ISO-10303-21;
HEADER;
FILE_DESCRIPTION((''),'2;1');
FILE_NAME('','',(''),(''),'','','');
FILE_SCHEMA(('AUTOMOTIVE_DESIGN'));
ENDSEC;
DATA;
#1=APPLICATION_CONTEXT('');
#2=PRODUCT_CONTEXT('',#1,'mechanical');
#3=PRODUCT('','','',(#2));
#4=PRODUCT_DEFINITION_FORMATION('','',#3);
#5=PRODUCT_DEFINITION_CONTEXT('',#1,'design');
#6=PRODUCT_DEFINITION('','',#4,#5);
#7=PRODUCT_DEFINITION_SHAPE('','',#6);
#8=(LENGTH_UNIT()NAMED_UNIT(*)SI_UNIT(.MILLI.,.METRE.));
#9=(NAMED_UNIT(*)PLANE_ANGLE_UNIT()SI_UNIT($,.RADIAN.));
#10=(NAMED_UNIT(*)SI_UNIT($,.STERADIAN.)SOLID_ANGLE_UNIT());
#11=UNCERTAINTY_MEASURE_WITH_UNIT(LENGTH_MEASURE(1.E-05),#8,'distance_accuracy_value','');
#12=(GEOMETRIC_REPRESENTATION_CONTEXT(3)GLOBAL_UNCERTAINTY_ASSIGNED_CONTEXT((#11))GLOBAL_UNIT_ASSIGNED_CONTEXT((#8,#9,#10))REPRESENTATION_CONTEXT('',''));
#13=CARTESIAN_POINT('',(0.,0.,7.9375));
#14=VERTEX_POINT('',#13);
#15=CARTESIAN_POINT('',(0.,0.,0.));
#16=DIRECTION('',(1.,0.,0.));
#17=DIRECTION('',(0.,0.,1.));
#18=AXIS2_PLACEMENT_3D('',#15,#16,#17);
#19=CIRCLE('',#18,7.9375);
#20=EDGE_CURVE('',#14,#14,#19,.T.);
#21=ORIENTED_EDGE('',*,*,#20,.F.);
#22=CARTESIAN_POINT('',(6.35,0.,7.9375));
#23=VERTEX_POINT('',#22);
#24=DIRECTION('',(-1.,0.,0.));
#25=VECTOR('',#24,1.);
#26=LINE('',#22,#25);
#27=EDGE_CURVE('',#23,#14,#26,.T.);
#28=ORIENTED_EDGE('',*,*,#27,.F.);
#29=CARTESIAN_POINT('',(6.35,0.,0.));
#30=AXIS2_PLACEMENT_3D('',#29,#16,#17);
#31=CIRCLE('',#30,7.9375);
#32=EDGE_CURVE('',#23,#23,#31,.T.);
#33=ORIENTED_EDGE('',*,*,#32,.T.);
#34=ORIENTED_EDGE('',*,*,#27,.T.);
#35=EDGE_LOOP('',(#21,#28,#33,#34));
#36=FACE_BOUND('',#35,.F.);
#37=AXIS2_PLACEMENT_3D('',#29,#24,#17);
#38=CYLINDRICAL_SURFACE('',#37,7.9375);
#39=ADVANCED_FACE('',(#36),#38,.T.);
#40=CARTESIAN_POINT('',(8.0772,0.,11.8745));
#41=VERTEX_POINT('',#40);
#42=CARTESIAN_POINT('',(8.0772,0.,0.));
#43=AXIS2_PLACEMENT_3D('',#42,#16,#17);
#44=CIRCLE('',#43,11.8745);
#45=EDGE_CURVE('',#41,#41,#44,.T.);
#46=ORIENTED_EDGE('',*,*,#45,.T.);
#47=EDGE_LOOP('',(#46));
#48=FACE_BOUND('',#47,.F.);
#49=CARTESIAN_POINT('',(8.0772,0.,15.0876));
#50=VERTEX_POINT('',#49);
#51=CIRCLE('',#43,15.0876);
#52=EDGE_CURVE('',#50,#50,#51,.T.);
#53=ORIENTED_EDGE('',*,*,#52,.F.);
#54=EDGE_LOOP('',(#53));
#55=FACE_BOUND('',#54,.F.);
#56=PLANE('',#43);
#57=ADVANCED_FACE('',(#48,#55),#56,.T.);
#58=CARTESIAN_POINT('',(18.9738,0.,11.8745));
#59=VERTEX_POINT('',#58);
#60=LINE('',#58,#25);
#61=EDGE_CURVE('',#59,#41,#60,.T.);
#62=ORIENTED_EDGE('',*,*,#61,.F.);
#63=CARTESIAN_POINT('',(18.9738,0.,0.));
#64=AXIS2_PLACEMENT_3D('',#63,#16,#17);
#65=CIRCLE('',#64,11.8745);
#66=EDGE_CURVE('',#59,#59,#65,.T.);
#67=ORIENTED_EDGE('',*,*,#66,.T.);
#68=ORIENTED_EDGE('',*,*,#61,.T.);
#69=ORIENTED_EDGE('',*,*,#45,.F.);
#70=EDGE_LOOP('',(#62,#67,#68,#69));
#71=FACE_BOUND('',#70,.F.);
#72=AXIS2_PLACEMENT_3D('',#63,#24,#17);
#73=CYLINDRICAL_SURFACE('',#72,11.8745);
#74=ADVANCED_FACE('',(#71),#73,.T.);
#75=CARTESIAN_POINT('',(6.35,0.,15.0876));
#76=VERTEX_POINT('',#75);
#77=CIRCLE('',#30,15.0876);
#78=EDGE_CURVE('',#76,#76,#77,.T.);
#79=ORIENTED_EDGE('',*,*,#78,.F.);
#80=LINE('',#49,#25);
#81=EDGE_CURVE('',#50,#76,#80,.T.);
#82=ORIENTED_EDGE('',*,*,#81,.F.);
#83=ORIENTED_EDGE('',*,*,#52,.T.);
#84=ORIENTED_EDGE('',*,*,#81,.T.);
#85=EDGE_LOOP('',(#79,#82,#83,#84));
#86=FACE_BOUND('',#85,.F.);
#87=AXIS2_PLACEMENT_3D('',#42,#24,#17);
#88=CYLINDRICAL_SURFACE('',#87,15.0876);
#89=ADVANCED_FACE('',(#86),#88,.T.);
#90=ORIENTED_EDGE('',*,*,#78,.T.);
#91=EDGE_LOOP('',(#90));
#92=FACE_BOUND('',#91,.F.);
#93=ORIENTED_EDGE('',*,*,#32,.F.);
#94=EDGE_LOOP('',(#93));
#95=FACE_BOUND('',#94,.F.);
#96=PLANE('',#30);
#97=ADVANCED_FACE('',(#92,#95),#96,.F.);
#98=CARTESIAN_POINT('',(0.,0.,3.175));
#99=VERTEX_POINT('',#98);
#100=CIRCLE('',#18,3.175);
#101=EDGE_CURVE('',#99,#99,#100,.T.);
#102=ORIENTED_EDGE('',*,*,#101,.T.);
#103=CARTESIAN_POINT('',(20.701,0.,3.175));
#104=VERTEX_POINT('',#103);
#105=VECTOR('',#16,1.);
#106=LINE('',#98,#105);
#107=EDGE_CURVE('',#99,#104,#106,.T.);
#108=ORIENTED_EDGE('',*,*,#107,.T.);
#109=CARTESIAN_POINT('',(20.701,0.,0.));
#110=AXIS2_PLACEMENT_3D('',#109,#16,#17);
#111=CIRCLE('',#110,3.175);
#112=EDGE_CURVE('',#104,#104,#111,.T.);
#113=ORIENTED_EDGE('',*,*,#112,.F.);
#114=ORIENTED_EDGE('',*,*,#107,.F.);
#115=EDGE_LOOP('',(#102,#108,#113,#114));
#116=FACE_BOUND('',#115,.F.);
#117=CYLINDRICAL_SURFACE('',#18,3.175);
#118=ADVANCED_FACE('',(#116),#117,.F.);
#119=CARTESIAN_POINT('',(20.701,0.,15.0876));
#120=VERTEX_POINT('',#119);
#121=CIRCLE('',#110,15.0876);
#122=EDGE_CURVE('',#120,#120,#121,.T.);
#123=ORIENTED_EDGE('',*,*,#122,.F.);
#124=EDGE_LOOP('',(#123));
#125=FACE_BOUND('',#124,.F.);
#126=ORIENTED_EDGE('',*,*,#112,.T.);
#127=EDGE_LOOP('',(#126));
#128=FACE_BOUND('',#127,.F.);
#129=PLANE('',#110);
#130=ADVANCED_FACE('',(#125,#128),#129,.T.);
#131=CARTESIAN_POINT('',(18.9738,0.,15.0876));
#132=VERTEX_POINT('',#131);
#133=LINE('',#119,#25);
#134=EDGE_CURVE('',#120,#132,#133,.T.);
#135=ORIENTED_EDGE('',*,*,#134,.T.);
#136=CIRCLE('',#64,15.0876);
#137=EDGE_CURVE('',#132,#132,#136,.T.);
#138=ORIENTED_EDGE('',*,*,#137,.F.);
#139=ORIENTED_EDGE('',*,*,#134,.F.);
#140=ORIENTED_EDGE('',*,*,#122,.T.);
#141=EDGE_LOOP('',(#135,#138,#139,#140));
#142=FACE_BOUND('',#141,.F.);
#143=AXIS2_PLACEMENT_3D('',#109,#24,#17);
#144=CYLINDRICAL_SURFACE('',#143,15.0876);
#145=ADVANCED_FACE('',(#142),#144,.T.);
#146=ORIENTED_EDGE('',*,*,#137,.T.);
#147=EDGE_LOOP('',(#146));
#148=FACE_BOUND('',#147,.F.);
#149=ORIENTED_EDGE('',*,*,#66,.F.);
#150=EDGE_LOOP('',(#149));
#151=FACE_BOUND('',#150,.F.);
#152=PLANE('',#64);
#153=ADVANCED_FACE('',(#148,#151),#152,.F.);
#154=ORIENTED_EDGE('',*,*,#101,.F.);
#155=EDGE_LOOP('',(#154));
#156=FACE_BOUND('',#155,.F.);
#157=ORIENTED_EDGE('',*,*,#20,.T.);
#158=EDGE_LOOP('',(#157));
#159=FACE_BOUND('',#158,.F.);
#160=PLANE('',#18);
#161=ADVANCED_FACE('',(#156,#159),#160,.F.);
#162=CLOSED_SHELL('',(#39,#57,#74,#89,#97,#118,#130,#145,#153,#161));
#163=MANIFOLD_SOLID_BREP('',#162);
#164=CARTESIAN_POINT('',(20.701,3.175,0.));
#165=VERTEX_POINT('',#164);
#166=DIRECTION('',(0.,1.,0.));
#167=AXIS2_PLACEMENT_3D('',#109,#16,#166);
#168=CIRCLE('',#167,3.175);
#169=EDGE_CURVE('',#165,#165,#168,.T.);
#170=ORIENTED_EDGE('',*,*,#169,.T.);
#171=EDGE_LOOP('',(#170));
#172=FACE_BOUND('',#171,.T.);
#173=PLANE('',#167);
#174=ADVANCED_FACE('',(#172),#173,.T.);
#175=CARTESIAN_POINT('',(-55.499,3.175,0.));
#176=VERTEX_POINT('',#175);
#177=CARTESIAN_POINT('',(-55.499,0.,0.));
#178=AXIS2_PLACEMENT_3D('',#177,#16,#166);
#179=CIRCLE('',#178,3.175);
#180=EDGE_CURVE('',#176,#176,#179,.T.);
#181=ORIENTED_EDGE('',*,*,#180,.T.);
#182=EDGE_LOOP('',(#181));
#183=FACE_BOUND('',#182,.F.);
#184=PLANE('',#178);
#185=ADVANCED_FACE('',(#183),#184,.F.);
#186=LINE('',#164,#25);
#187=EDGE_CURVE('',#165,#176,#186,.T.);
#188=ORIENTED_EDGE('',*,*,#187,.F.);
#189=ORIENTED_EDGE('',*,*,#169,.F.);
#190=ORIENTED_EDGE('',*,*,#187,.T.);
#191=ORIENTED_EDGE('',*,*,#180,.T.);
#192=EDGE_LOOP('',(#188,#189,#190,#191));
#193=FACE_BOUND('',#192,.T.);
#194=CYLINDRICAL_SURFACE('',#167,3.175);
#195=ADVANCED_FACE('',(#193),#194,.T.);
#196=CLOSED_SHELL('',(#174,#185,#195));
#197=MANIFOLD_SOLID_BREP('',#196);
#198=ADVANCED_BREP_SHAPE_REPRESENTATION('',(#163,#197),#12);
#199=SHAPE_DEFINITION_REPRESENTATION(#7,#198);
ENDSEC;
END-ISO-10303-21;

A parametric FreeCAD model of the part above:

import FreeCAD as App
import Part
import Sketcher

V = App.Vector
Q = App.Units.Quantity


def add_polygon(sketch, points):
    """Adds a closed chain of lines whose ends are joined by coincident constraints."""
    first, n = sketch.GeometryCount, len(points)
    for a, b in zip(points, points[1:] + points[:1]):
        sketch.addGeometry(Part.LineSegment(App.Vector(*a, 0), App.Vector(*b, 0)), False)
    for i in range(n):
        sketch.addConstraint(Sketcher.Constraint("Coincident", first + i, 2, first + (i + 1) % n, 1))

doc = App.newDocument("Part")
body = doc.addObject("PartDesign::Body", "Body")

# Sketch on XZ plane
sketch1 = body.newObject("Sketcher::SketchObject", "Sketch")
sketch1.AttachmentSupport = (doc.getObject("XZ_Plane"), [""])
sketch1.MapMode = "FlatFace"
add_polygon(sketch1, [(0, 7.9), (0, 3.2), (20.7, 3.2), (20.7, 15.1), (19, 15.1), (19, 11.9), (8.1, 11.9), (8.1, 15.1), (6.3, 15.1), (6.3, 7.9)])  # lines 0-9
sketch1.addConstraint([
    Sketcher.Constraint("Vertical", 0),
    Sketcher.Constraint("Horizontal", 1),
    Sketcher.Constraint("Vertical", 2),
    Sketcher.Constraint("Horizontal", 3),
    Sketcher.Constraint("Vertical", 4),
    Sketcher.Constraint("Horizontal", 5),
    Sketcher.Constraint("Vertical", 6),
    Sketcher.Constraint("Horizontal", 7),
    Sketcher.Constraint("Vertical", 8),
    Sketcher.Constraint("Horizontal", 9),
    Sketcher.Constraint("PointOnObject", 0, 2, -2),
    Sketcher.Constraint("Horizontal", 3, 2, 6, 2),
    Sketcher.Constraint("Equal", 3, 7),
    Sketcher.Constraint("DistanceX", 9, 2, 9, 1, Q("0.25 in")),
    Sketcher.Constraint("DistanceX", 1, 1, 1, 2, Q("0.815 in")),
    Sketcher.Constraint("DistanceX", 3, 2, 3, 1, Q("0.068 in")),
    Sketcher.Constraint("DistanceY", 0, 2, 0, 1, Q("0.1875 in")),
    Sketcher.Constraint("DistanceY", 2, 1, 2, 2, Q("0.469 in")),
    Sketcher.Constraint("DistanceY", 4, 2, 4, 1, Q("0.1265 in")),
    Sketcher.Constraint("DistanceY", -1, 1, 0, 2, Q("0.125 in")),
])
revolution = body.newObject("PartDesign::Revolution", "Revolution")
revolution.Profile = sketch1
revolution.ReferenceAxis = (sketch1, ["H_Axis"])
revolution.Angle = 360
body2 = doc.addObject("PartDesign::Body", "Body001")

# Sketch on YZ plane
sketch2 = body2.newObject("Sketcher::SketchObject", "Sketch001")
sketch2.AttachmentSupport = (doc.getObject("YZ_Plane001"), [""])
sketch2.MapMode = "FlatFace"
sketch2.AttachmentOffset = App.Placement(V(0, 0, 0.815 * 25.4), App.Rotation())
sketch2.addGeometry(Part.Circle(V(0, 0, 0), V(0, 0, 1), 3.2), False)
sketch2.addConstraint([
    Sketcher.Constraint("Coincident", 0, 3, -1, 1),
    Sketcher.Constraint("Diameter", 0, Q("0.25 in")),
])
pad1 = body2.newObject("PartDesign::Pad", "Pad")
pad1.Profile = sketch2
pad1.Length = Q("3 in")
pad1.Reversed = True

doc.recompute()
